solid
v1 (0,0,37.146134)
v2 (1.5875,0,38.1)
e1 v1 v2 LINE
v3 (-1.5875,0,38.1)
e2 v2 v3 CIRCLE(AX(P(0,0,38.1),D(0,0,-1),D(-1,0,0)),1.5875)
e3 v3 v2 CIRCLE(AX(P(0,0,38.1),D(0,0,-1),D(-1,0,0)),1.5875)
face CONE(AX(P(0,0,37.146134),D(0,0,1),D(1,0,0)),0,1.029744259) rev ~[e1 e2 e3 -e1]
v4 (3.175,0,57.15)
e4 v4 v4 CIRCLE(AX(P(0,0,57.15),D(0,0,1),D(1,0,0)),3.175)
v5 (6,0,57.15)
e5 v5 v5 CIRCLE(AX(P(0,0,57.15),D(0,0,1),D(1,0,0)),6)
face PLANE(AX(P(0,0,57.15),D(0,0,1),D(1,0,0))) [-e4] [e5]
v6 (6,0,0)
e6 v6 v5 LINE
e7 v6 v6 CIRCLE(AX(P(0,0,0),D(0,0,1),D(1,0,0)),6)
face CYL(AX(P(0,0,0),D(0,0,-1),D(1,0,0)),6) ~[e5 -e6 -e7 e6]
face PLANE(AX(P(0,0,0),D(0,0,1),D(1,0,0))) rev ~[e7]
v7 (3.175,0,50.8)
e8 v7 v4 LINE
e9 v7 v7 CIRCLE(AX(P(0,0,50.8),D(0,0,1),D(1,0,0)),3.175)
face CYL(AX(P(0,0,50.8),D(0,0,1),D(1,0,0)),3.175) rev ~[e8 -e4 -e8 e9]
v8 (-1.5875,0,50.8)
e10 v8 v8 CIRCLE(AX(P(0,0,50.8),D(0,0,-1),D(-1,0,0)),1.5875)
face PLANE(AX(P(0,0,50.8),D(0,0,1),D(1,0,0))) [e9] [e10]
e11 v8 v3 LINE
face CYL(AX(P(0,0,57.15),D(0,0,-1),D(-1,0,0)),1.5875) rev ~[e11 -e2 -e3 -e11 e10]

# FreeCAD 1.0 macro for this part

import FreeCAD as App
import Part
import Sketcher
Q = App.Units.Quantity

doc = App.newDocument("Part")
body = doc.addObject("PartDesign::Body", "Body")

# Sketch on XY plane
sketch1 = body.newObject("Sketcher::SketchObject", "Sketch")
sketch1.AttachmentSupport = (doc.getObject("XY_Plane"), [""])
sketch1.MapMode = "FlatFace"
sketch1.addGeometry(Part.Circle(App.Vector(0, 0, 0), App.Vector(0, 0, 1), 6), False)
sketch1.addConstraint([
    Sketcher.Constraint("Coincident", 0, 3, -1, 1),
    Sketcher.Constraint("Diameter", 0, 12.0),
])
pad1 = body.newObject("PartDesign::Pad", "Pad")
pad1.Profile = sketch1
pad1.Length = Q("2.25 in")

# Sketch on XY plane
sketch2 = body.newObject("Sketcher::SketchObject", "Sketch001")
sketch2.AttachmentSupport = (doc.getObject("XY_Plane"), [""])
sketch2.MapMode = "FlatFace"
sketch2.AttachmentOffset = App.Placement(App.Vector(0, 0, 2.25 * 25.4), App.Rotation())
sketch2.addGeometry(Part.Circle(App.Vector(0, 0, 0), App.Vector(0, 0, 1), 1.5875), False)
sketch2.addConstraint([
    Sketcher.Constraint("Coincident", 0, 3, -1, 1),
    Sketcher.Constraint("Diameter", 0, Q("0.125 in")),
])
doc.recompute()
hole = body.newObject("PartDesign::Hole", "Hole")
hole.Profile = sketch2
hole.ThreadType = "None"
hole.Diameter = Q("0.125 in")
hole.DepthType = "Dimension"
hole.Depth = Q("0.75 in")
hole.DrillPoint = "Angled"
hole.DrillPointAngle = 118
hole.HoleCutType = "Counterbore"
hole.HoleCutDiameter = Q("0.25 in")
hole.HoleCutDepth = Q("0.25 in")

doc.recompute()
